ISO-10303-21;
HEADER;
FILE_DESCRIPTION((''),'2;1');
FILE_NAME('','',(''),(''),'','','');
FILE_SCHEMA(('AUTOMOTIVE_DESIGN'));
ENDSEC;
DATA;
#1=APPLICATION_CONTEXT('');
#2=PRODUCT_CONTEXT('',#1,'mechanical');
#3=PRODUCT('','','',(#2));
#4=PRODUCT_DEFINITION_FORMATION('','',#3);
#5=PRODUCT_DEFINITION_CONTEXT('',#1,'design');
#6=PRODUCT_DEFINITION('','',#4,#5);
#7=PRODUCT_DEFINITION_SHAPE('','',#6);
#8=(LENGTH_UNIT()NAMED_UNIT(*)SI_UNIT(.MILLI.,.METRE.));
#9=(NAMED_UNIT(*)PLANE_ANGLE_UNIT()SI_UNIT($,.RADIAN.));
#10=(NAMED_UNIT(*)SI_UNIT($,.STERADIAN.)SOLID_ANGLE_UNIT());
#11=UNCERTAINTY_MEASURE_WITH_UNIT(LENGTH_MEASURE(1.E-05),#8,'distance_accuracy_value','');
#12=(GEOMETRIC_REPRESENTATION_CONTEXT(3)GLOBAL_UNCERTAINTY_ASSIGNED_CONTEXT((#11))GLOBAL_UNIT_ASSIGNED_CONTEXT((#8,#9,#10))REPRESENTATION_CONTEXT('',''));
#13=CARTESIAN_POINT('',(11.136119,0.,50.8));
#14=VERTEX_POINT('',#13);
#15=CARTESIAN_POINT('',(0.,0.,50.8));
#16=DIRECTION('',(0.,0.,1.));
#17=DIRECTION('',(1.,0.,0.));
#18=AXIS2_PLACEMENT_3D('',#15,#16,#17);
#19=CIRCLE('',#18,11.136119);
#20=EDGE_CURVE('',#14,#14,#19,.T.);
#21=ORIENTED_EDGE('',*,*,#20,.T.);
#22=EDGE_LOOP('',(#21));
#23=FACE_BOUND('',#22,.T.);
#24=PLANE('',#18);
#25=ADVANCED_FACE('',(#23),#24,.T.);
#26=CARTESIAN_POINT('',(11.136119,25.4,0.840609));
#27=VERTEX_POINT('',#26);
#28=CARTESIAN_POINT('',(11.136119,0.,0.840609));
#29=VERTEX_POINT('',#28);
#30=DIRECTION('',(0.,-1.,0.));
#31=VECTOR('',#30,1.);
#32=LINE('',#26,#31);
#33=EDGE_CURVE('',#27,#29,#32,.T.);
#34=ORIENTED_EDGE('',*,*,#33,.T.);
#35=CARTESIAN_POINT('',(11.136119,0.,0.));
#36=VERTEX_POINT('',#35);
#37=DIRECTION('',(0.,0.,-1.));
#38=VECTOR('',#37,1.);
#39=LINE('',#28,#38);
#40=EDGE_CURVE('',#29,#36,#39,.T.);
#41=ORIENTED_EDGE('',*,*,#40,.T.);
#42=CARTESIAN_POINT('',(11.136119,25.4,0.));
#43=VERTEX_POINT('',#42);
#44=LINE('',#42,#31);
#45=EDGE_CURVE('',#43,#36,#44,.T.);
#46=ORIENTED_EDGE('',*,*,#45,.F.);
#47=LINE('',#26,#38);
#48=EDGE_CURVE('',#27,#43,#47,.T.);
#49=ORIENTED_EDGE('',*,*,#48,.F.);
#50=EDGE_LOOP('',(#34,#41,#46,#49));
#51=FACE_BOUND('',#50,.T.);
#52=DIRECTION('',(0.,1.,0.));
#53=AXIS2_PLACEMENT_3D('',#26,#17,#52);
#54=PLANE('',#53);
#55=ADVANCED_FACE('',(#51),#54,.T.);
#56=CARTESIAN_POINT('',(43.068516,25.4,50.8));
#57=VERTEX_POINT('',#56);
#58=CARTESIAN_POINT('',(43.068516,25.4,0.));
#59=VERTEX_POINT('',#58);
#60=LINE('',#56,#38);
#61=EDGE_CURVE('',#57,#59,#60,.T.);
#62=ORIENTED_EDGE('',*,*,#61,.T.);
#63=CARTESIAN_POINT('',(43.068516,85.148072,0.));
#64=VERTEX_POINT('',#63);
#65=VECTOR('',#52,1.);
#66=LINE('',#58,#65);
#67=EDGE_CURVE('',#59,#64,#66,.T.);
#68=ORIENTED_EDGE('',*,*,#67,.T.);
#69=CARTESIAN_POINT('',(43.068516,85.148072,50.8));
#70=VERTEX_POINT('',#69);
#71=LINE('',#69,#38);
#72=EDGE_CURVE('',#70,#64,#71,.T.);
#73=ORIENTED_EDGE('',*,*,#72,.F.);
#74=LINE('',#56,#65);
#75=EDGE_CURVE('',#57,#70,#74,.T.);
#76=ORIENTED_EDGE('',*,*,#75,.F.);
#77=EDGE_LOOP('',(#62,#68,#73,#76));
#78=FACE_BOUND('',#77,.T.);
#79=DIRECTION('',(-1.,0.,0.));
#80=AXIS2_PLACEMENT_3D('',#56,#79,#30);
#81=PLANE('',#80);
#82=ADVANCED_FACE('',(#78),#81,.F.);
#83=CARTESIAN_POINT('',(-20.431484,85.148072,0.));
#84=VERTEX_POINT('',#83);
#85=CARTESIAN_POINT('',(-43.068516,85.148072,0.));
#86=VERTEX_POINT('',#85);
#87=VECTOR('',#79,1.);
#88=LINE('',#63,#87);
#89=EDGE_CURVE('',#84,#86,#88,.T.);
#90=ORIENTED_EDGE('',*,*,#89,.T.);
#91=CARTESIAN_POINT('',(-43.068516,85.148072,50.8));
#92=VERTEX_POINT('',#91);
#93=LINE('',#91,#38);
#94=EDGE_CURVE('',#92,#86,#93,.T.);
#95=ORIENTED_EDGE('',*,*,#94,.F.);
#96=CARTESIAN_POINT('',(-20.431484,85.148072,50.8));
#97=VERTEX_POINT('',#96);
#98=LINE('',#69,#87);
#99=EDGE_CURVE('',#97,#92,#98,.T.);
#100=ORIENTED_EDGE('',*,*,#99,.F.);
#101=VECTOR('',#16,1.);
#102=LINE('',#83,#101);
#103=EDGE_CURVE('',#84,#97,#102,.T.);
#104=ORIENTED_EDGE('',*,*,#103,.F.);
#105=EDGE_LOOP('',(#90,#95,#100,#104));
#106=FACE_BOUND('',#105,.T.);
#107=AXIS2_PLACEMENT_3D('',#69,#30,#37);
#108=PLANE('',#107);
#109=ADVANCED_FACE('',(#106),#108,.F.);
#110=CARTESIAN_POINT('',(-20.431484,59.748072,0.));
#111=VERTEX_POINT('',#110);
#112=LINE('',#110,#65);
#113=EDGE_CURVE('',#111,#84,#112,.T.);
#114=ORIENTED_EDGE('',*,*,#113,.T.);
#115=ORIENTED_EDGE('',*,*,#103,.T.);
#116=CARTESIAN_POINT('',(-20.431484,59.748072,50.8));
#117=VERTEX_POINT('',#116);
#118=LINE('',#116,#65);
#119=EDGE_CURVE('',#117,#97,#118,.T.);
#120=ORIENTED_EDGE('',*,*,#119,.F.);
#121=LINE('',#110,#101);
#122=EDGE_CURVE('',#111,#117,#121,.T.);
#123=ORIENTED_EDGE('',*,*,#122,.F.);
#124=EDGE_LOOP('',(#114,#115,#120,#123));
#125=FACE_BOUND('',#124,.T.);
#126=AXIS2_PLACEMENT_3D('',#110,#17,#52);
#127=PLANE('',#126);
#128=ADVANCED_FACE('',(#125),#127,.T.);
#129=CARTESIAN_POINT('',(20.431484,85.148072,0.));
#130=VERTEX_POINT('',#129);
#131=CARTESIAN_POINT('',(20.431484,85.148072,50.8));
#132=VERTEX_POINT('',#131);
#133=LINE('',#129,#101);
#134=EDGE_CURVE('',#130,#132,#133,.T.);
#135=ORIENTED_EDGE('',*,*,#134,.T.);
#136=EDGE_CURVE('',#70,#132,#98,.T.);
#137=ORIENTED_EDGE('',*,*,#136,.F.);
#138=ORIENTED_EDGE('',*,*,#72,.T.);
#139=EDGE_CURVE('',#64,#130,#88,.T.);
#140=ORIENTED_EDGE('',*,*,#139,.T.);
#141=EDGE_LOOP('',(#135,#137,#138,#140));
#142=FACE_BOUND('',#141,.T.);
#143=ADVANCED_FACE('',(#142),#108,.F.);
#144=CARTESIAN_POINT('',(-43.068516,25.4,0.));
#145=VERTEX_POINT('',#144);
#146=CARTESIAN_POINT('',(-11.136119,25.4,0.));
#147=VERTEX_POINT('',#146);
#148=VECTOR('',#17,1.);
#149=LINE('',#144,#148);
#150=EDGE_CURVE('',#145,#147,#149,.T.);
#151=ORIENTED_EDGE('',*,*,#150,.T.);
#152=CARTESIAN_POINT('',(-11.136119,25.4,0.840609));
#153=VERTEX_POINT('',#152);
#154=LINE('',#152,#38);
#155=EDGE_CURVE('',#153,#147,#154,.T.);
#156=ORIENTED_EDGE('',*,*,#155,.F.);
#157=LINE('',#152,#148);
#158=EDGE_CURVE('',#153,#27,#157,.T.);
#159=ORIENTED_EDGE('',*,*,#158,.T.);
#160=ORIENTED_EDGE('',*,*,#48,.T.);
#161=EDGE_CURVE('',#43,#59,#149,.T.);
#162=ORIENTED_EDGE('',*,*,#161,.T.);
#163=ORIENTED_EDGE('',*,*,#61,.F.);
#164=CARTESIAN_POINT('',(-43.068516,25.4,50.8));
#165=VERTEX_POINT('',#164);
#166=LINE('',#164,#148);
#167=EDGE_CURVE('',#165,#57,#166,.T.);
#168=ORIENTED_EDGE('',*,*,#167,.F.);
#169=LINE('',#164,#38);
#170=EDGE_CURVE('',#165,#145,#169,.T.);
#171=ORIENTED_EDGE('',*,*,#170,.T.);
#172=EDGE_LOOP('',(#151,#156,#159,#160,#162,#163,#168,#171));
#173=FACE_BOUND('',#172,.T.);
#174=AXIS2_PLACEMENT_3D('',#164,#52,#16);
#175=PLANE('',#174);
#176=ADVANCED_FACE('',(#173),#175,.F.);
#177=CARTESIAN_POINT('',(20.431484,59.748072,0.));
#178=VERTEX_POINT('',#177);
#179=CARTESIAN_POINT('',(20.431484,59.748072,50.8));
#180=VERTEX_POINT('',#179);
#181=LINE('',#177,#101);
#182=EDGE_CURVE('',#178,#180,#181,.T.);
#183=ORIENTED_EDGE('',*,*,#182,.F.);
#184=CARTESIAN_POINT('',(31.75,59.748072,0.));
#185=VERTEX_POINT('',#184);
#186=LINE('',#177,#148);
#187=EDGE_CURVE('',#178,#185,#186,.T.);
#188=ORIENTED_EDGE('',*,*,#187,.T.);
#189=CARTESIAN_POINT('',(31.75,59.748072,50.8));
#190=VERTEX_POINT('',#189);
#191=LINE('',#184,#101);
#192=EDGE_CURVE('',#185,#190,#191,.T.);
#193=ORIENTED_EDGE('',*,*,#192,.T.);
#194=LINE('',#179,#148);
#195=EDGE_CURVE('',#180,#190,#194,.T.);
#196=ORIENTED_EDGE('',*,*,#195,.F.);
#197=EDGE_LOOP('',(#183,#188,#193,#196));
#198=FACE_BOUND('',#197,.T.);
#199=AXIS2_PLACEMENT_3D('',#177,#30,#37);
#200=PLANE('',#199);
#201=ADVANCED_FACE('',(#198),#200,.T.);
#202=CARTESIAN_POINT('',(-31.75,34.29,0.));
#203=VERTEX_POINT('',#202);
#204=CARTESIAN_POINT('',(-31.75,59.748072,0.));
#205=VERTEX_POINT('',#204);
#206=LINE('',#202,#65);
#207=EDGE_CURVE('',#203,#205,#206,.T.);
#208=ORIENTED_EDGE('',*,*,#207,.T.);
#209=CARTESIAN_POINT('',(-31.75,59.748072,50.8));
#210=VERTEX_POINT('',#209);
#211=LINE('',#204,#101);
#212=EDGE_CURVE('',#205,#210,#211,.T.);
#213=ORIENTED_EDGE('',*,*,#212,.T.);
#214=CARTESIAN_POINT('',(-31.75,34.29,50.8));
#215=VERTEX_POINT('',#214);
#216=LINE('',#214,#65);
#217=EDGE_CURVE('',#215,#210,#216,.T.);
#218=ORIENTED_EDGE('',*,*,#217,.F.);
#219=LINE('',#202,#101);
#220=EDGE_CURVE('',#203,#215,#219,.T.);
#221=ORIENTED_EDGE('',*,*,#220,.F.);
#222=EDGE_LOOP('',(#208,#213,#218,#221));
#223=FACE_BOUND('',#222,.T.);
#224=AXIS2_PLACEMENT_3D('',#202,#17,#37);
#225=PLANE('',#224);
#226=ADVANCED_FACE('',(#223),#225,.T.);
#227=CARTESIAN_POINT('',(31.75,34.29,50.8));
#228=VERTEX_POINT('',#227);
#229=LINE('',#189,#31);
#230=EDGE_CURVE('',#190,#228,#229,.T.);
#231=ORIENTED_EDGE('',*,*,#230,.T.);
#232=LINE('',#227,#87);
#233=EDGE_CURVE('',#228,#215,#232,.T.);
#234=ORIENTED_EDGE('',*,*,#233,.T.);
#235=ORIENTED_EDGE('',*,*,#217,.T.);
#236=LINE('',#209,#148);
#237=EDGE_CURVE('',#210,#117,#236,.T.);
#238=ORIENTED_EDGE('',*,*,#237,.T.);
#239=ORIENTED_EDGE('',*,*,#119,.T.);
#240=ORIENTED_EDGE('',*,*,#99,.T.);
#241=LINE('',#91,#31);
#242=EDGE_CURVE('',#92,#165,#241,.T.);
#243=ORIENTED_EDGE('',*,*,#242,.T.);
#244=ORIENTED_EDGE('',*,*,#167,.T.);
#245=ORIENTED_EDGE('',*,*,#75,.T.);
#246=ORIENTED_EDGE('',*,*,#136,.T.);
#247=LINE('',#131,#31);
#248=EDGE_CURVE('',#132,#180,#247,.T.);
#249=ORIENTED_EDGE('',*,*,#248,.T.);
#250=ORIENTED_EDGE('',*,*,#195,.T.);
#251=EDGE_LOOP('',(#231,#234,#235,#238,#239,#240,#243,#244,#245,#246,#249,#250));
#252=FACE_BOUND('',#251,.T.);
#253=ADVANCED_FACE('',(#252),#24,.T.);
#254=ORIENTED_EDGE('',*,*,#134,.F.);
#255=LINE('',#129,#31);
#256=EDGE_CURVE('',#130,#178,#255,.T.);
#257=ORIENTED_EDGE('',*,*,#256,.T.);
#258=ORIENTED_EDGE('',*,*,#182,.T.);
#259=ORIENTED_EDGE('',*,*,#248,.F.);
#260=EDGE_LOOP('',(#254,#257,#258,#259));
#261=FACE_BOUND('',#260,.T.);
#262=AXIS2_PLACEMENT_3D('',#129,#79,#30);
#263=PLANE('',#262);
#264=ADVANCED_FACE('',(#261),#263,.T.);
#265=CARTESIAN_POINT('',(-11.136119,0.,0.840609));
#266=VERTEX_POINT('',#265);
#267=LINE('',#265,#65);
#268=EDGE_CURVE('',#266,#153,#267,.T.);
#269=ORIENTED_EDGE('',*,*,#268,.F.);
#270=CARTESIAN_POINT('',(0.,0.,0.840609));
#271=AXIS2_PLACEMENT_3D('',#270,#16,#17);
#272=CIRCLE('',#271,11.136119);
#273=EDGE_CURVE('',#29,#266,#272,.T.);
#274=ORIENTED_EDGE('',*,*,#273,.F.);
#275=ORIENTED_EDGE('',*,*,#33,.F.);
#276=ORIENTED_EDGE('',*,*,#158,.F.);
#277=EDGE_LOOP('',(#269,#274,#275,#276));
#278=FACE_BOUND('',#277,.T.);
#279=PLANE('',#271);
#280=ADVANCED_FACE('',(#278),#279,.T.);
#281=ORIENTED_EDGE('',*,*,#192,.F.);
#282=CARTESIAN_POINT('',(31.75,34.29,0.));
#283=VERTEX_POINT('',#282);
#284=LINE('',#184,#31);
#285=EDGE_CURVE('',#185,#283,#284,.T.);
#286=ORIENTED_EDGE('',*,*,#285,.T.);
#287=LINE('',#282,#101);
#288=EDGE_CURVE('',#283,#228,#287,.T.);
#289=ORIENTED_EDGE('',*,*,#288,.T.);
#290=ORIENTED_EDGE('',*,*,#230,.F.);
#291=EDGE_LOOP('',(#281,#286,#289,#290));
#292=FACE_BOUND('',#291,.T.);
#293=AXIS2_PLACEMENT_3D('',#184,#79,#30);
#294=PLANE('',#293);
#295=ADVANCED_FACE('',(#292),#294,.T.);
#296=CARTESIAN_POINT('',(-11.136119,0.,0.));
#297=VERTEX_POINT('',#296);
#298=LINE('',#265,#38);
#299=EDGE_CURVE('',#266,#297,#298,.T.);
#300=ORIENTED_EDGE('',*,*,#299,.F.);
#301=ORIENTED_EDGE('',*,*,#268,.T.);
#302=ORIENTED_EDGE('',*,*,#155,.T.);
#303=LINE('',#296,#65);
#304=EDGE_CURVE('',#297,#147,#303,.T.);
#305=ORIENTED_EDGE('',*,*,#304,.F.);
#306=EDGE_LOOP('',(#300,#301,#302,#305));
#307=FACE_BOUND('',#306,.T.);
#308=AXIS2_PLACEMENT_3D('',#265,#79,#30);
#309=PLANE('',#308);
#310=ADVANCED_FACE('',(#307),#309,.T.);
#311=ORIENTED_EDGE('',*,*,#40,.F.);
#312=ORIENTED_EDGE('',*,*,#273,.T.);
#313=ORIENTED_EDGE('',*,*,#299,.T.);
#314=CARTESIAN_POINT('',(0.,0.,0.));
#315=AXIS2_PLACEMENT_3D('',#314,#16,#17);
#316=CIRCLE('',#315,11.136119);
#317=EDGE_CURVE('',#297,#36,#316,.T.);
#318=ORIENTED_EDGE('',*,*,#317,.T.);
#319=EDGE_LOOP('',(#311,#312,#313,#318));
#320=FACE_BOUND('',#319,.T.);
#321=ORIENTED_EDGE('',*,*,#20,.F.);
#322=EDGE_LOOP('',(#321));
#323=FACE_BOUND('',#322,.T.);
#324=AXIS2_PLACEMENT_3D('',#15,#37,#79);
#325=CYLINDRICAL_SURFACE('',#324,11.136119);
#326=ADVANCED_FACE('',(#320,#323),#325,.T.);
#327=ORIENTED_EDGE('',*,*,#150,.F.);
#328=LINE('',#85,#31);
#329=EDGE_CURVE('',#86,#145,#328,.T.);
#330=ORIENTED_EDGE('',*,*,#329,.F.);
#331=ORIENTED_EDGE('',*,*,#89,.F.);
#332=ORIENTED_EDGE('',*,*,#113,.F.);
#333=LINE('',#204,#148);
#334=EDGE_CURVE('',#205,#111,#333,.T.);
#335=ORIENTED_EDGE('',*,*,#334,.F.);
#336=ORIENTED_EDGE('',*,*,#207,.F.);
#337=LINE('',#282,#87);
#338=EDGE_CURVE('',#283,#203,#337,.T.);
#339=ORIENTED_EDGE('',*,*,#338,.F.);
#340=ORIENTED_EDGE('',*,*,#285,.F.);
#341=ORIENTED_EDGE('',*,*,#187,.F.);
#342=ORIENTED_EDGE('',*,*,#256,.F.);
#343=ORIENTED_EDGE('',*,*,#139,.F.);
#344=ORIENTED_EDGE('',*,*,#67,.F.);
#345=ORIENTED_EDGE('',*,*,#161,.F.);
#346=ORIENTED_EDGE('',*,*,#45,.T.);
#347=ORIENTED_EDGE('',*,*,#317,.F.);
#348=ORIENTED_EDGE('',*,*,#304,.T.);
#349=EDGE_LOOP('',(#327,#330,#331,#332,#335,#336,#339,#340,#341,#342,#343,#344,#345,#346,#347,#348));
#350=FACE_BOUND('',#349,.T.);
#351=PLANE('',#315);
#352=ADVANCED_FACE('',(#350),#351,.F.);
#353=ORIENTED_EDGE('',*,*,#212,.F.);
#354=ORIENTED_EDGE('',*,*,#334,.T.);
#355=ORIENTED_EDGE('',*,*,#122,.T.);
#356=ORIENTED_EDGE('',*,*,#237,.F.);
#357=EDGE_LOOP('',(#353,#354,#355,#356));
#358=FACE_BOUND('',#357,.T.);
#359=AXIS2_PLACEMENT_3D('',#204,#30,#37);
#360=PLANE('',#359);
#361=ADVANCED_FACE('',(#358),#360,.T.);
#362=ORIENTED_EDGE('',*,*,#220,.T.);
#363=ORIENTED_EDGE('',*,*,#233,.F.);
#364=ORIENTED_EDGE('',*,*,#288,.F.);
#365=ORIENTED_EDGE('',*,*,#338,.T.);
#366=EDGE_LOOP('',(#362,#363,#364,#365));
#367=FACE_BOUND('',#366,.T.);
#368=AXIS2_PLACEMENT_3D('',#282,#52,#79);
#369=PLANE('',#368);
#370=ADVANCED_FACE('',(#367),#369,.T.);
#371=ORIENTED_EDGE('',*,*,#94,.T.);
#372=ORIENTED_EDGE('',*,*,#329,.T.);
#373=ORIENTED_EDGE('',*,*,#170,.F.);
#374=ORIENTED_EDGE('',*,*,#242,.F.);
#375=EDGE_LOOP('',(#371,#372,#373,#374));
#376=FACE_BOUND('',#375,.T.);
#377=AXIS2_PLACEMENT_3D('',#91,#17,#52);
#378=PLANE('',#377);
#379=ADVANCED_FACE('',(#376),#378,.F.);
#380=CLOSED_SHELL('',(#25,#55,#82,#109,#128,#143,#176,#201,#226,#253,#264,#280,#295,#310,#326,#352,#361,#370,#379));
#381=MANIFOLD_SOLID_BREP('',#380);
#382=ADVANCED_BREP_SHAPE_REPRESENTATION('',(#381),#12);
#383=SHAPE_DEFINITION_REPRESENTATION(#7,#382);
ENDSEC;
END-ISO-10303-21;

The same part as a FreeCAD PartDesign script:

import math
import FreeCAD as App
import Part
import Sketcher
from FreeCAD import Vector
Q = App.Units.Quantity


def add_polygon(sketch, points):
    """Adds a closed chain of lines whose ends are joined by coincident constraints."""
    first, n = sketch.GeometryCount, len(points)
    for a, b in zip(points, points[1:] + points[:1]):
        sketch.addGeometry(Part.LineSegment(App.Vector(*a, 0), App.Vector(*b, 0)), False)
    for i in range(n):
        sketch.addConstraint(Sketcher.Constraint("Coincident", first + i, 2, first + (i + 1) % n, 1))

doc = App.newDocument("Part")
body = doc.addObject("PartDesign::Body", "Body")

sketch1 = body.newObject("Sketcher::SketchObject", "Sketch")
sketch1.AttachmentSupport = (doc.getObject("XY_Plane"), [""])
sketch1.MapMode = "FlatFace"
sketch1.addGeometry([
    Part.LineSegment(Vector(-11, 25, 0), Vector(-11, 0, 0)),
    Part.ArcOfCircle(Part.Circle(Vector(0, 0, 0), Vector(0, 0, 1), 11), math.radians(0), math.radians(180)),
    Part.LineSegment(Vector(11, 0, 0), Vector(11, 25, 0)),
    Part.LineSegment(Vector(11, 25, 0), Vector(-11, 25, 0)),
], False)
sketch1.addConstraint([
    Sketcher.Constraint("Tangent", 0, 2, 1, 2),
    Sketcher.Constraint("Tangent", 1, 1, 2, 1),
    Sketcher.Constraint("Coincident", 2, 2, 3, 1),
    Sketcher.Constraint("Coincident", 3, 2, 0, 1),
    Sketcher.Constraint("Vertical", 0),
    Sketcher.Constraint("Vertical", 2),
    Sketcher.Constraint("Horizontal", 3),
    Sketcher.Constraint("Coincident", 1, 3, -1, 1),
    Sketcher.Constraint("DistanceY", 0, 2, 0, 1, Q("1 in")),
    Sketcher.Constraint("Radius", 1, 11.136119),
])
pad1 = body.newObject("PartDesign::Pad", "Pad")
pad1.Profile = sketch1
pad1.Length = 0.840609

sketch2 = body.newObject("Sketcher::SketchObject", "Sketch001")
sketch2.AttachmentSupport = (doc.getObject("XY_Plane"), [""])
sketch2.MapMode = "FlatFace"
sketch2.addGeometry(Part.Circle(Vector(0, 0, 0), Vector(0, 0, 1), 11), False)
sketch2.addConstraint([
    Sketcher.Constraint("Coincident", 0, 3, -1, 1),
    Sketcher.Constraint("Diameter", 0, 22.272237),
])
pad2 = body.newObject("PartDesign::Pad", "Pad001")
pad2.Profile = sketch2
pad2.Length = Q("2 in")

sketch3 = body.newObject("Sketcher::SketchObject", "Sketch002")
sketch3.AttachmentSupport = (doc.getObject("XY_Plane"), [""])
sketch3.MapMode = "FlatFace"
add_polygon(sketch3, [(-43, 85), (-43, 25), (43, 25), (43, 85)])
sketch3.addConstraint([
    Sketcher.Constraint("Vertical", 0),
    Sketcher.Constraint("Horizontal", 1),
    Sketcher.Constraint("Vertical", 2),
    Sketcher.Constraint("Horizontal", 3),
    Sketcher.Constraint("DistanceY", -1, 1, 0, 2, Q("1 in")),
    Sketcher.Constraint("DistanceX", 1, 1, 1, 2, 86.137031),
    Sketcher.Constraint("DistanceY", 0, 2, 0, 1, 59.748072),
    Sketcher.Constraint("DistanceX", 0, 2, -1, 1, 43.068516),
])
pad3 = body.newObject("PartDesign::Pad", "Pad002")
pad3.Profile = sketch3
pad3.Length = Q("2 in")

sketch4 = body.newObject("Sketcher::SketchObject", "Sketch003")
sketch4.AttachmentSupport = (doc.getObject("XY_Plane"), [""])
sketch4.MapMode = "FlatFace"
sketch4.AttachmentOffset = App.Placement(Vector(0, 0, 2 * 25.4), App.Rotation())
add_polygon(sketch4, [(20, 60), (20, 85), (-20, 85), (-20, 60), (-32, 60), (-32, 34), (32, 34), (32, 60)])
sketch4.addConstraint([
    Sketcher.Constraint("Vertical", 0),
    Sketcher.Constraint("Horizontal", 1),
    Sketcher.Constraint("Vertical", 2),
    Sketcher.Constraint("Horizontal", 3),
    Sketcher.Constraint("Vertical", 4),
    Sketcher.Constraint("Horizontal", 5),
    Sketcher.Constraint("Vertical", 6),
    Sketcher.Constraint("Horizontal", 7),
    Sketcher.Constraint("Symmetric", 3, 2, 6, 2, -2),
    Sketcher.Constraint("Equal", 3, 7),
    Sketcher.Constraint("DistanceY", 0, 1, 0, 2, Q("1 in")),
    Sketcher.Constraint("DistanceX", 5, 1, 5, 2, Q("2.5 in")),
    Sketcher.Constraint("DistanceY", -1, 1, 4, 2, Q("1.35 in")),
    Sketcher.Constraint("DistanceX", 1, 2, 1, 1, 40.862969),
    Sketcher.Constraint("DistanceY", 4, 2, 4, 1, 25.458072),
])
pocket1 = body.newObject("PartDesign::Pocket", "Pocket")
pocket1.Profile = sketch4
pocket1.Type = "ThroughAll"

doc.recompute()
